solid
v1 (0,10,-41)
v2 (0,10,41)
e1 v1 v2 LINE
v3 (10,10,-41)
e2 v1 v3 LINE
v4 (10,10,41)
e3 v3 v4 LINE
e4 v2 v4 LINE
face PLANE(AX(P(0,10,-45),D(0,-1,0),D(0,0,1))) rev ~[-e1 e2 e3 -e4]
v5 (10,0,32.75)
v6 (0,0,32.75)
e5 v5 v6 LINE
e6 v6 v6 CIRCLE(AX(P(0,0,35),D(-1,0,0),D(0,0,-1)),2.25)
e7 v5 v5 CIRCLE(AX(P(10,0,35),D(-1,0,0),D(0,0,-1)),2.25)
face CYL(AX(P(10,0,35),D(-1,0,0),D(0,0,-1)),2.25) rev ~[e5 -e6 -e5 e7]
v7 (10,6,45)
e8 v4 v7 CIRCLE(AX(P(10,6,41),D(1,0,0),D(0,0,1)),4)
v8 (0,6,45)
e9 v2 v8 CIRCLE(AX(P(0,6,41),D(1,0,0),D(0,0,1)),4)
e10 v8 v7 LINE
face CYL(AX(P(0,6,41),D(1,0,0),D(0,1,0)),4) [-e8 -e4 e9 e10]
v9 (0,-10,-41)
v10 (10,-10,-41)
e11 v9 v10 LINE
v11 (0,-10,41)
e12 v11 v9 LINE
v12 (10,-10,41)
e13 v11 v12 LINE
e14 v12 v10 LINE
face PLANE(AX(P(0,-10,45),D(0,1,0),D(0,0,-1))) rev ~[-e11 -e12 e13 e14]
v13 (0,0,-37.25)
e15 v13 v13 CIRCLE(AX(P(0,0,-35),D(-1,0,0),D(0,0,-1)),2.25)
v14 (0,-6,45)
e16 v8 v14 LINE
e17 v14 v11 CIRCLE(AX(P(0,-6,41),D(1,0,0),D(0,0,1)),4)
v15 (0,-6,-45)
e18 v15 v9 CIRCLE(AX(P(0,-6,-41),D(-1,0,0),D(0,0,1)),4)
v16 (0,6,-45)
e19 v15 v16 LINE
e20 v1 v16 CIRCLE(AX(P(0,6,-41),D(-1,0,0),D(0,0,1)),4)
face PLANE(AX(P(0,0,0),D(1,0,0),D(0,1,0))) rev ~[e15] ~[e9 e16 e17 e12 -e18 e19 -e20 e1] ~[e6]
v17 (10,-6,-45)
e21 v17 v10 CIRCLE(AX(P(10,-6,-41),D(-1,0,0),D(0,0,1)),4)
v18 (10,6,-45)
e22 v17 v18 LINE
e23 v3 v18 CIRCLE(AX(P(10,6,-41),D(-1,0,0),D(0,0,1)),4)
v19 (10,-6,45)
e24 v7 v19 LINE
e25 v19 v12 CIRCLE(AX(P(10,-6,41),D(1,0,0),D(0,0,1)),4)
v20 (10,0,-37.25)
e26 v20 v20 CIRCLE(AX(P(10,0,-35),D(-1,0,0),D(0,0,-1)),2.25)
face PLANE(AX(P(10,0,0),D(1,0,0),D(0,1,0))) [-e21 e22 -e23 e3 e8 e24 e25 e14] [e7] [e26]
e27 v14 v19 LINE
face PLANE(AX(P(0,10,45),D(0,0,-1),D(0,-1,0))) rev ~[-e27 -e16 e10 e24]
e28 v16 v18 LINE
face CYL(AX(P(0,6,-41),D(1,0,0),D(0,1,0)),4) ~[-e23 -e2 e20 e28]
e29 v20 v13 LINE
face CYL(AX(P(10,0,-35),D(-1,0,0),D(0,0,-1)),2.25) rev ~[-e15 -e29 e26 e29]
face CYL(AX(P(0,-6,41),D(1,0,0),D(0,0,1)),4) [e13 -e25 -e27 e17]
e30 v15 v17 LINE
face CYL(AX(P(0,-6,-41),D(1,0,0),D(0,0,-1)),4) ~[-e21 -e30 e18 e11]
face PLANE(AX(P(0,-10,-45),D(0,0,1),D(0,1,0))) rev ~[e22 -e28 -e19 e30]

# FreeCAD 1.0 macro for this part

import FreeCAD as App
import Part
import Sketcher
from FreeCAD import Vector


def edges_at(feature, points):
    """Names of the edges that pass closest to the given points."""
    edges = feature.Shape.Edges
    near = lambda p: min(range(len(edges)), key=lambda i: edges[i].distToShape(Part.Vertex(*p))[0])
    return sorted({f"Edge{near(p) + 1}" for p in points})


def add_polygon(sketch, points):
    """Adds a closed chain of lines whose ends are joined by coincident constraints."""
    first, n = sketch.GeometryCount, len(points)
    for a, b in zip(points, points[1:] + points[:1]):
        sketch.addGeometry(Part.LineSegment(App.Vector(*a, 0), App.Vector(*b, 0)), False)
    for i in range(n):
        sketch.addConstraint(Sketcher.Constraint("Coincident", first + i, 2, first + (i + 1) % n, 1))

doc = App.newDocument("Part")
body = doc.addObject("PartDesign::Body", "Body")

# Sketch on YZ plane
sketch1 = body.newObject("Sketcher::SketchObject", "Sketch")
sketch1.AttachmentSupport = (doc.getObject("YZ_Plane"), [""])
sketch1.MapMode = "FlatFace"
add_polygon(sketch1, [(10, -45), (10, 45), (-10, 45), (-10, -45)])  # lines 0-3
sketch1.addConstraint(Sketcher.Constraint("Vertical", 0))
sketch1.addConstraint(Sketcher.Constraint("Horizontal", 1))
sketch1.addConstraint(Sketcher.Constraint("Vertical", 2))
sketch1.addConstraint(Sketcher.Constraint("Horizontal", 3))
sketch1.addConstraint(Sketcher.Constraint("Symmetric", 0, 2, 2, 2, -1, 1))
sketch1.addConstraint(Sketcher.Constraint("DistanceX", 1, 2, 1, 1, 20.0))
sketch1.addConstraint(Sketcher.Constraint("DistanceY", 0, 1, 0, 2, 90.0))
pad1 = body.newObject("PartDesign::Pad", "Pad")
pad1.Profile = sketch1
pad1.Length = 10

# Sketch on YZ plane
sketch2 = body.newObject("Sketcher::SketchObject", "Sketch001")
sketch2.AttachmentSupport = (doc.getObject("YZ_Plane"), [""])
sketch2.MapMode = "FlatFace"
sketch2.AttachmentOffset = App.Placement(Vector(0, 0, 10), App.Rotation())
sketch2.addGeometry(Part.Circle(Vector(0, 35, 0), Vector(0, 0, 1), 2.2), False)
sketch2.addGeometry(Part.Circle(Vector(0, -35, 0), Vector(0, 0, 1), 2.2), False)
sketch2.addConstraint(Sketcher.Constraint("Equal", 0, 1))
sketch2.addConstraint(Sketcher.Constraint("Symmetric", 0, 3, 1, 3, -1, 1))
sketch2.addConstraint(Sketcher.Constraint("PointOnObject", 0, 3, -2))
sketch2.addConstraint(Sketcher.Constraint("Diameter", 0, 4.5))
sketch2.addConstraint(Sketcher.Constraint("DistanceY", -1, 1, 0, 3, 35.0))
doc.recompute()
hole = body.newObject("PartDesign::Hole", "Hole")
hole.Profile = sketch2
hole.ThreadType = "None"
hole.Diameter = 4.5
hole.DepthType = "ThroughAll"
doc.recompute()

fillet = body.newObject("PartDesign::Fillet", "Fillet")
fillet.Base = (hole, edges_at(hole, [
    (5, 10, 45),
    (5, -10, 45),
    (5, -10, -45),
    (5, 10, -45),
]))
fillet.Radius = 4

doc.recompute()
